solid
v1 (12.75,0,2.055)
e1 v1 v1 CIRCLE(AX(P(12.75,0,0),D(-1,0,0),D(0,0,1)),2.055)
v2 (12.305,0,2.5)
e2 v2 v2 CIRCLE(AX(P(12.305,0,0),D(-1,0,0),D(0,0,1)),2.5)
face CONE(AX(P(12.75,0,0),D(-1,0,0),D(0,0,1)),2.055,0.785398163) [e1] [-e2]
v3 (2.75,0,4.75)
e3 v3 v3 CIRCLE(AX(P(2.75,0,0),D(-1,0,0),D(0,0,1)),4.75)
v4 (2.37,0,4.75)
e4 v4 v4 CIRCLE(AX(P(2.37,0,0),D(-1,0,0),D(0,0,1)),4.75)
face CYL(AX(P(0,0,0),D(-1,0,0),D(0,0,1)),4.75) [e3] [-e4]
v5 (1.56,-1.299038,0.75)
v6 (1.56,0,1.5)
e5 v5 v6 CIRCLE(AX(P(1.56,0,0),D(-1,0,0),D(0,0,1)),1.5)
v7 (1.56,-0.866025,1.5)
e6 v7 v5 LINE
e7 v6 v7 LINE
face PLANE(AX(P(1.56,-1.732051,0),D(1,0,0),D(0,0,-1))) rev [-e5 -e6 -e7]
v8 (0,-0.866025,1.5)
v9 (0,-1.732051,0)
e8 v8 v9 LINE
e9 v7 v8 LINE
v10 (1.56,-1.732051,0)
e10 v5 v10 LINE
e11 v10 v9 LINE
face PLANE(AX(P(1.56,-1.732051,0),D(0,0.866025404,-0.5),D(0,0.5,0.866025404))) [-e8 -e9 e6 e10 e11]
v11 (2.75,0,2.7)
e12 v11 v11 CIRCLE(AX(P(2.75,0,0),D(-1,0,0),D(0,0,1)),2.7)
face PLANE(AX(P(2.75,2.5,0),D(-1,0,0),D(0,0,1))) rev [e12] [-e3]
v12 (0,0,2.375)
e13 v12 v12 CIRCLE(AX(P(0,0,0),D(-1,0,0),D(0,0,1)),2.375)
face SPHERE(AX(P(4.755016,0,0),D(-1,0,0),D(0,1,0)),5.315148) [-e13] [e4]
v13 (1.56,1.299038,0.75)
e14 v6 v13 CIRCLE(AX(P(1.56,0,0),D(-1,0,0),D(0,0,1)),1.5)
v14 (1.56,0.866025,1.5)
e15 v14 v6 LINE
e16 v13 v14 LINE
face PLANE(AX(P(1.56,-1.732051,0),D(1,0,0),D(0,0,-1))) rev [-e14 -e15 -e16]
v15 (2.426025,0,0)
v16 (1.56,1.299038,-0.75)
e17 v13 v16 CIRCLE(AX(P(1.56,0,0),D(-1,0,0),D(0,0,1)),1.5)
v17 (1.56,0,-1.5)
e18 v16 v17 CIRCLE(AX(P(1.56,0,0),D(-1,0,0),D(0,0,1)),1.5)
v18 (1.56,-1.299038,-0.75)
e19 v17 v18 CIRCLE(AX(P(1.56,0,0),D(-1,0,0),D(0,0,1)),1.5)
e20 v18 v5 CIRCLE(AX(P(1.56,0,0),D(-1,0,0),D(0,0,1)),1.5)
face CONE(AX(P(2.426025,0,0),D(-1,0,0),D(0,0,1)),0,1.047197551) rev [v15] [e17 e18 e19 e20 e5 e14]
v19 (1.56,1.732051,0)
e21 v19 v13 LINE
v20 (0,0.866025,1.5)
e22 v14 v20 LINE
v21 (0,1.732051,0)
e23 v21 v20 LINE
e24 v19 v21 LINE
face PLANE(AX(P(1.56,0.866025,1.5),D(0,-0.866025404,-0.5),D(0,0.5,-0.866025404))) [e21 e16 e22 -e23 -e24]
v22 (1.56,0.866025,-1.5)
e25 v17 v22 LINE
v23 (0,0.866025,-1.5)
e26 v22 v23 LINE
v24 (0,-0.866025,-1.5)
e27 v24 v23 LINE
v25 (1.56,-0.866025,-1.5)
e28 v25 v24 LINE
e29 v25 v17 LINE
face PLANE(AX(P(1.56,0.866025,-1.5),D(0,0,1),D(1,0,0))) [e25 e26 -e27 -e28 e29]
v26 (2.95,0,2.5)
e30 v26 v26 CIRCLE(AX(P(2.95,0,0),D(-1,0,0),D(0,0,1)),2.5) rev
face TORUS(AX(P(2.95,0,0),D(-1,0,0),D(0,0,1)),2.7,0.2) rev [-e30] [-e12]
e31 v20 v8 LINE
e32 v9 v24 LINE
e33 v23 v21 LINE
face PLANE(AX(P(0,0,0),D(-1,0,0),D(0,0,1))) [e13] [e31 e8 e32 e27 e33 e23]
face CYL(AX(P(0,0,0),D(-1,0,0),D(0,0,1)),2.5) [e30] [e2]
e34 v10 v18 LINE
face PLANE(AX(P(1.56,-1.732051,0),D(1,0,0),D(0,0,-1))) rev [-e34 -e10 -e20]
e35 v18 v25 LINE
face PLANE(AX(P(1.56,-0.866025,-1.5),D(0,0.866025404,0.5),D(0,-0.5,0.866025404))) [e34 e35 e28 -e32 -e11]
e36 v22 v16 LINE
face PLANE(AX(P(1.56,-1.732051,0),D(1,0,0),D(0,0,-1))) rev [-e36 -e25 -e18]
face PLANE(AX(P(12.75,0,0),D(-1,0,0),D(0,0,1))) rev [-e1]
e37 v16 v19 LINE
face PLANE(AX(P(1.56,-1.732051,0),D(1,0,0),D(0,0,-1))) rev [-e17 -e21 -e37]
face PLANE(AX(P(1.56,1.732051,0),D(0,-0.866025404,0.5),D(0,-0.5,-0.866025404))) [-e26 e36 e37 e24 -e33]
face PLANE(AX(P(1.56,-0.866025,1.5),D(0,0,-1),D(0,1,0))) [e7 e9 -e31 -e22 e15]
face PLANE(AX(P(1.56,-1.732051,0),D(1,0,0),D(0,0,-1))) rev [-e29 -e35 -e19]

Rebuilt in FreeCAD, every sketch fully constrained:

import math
import FreeCAD as App
import Part
import Sketcher

V = App.Vector
Q = App.Units.Quantity


def edges_at(feature, points):
    """Names of the edges that pass closest to the given points."""
    edges = feature.Shape.Edges
    near = lambda p: min(range(len(edges)), key=lambda i: edges[i].distToShape(Part.Vertex(*p))[0])
    return sorted({f"Edge{near(p) + 1}" for p in points})


def add_polygon(sketch, points):
    """Adds a closed chain of lines whose ends are joined by coincident constraints."""
    first, n = sketch.GeometryCount, len(points)
    for a, b in zip(points, points[1:] + points[:1]):
        sketch.addGeometry(Part.LineSegment(App.Vector(*a, 0), App.Vector(*b, 0)), False)
    for i in range(n):
        sketch.addConstraint(Sketcher.Constraint("Coincident", first + i, 2, first + (i + 1) % n, 1))

doc = App.newDocument("Part")
body = doc.addObject("PartDesign::Body", "Body")

# Sketch on XY plane
sketch1 = body.newObject("Sketcher::SketchObject", "Sketch")
sketch1.AttachmentSupport = (doc.getObject("XY_Plane"), [""])
sketch1.MapMode = "FlatFace"
sketch1.addGeometry([
    Part.LineSegment(V(12.75, 0, 0), V(12.75, 2.06, 0)),  # 0
    Part.LineSegment(V(12.75, 2.06, 0), V(12.3, 2.5, 0)),  # 1
    Part.LineSegment(V(12.3, 2.5, 0), V(2.75, 2.5, 0)),  # 2
    Part.LineSegment(V(2.75, 2.5, 0), V(2.75, 4.75, 0)),  # 3
    Part.LineSegment(V(2.75, 4.75, 0), V(2.37, 4.75, 0)),  # 4
    Part.ArcOfCircle(Part.Circle(V(4.76, 0, 0), V(0, 0, 1), 5.32), math.radians(117), math.radians(153)),  # 5
    Part.LineSegment(V(0, 2.38, 0), V(0, 0, 0)),  # 6
    Part.LineSegment(V(0, 0, 0), V(12.75, 0, 0)),  # 7
], False)
sketch1.addConstraint([
    Sketcher.Constraint("Coincident", 0, 2, 1, 1),
    Sketcher.Constraint("Coincident", 1, 2, 2, 1),
    Sketcher.Constraint("Coincident", 2, 2, 3, 1),
    Sketcher.Constraint("Coincident", 3, 2, 4, 1),
    Sketcher.Constraint("Coincident", 4, 2, 5, 1),
    Sketcher.Constraint("Coincident", 5, 2, 6, 1),
    Sketcher.Constraint("Coincident", 6, 2, 7, 1),
    Sketcher.Constraint("Coincident", 7, 2, 0, 1),
    Sketcher.Constraint("Vertical", 0),
    Sketcher.Constraint("Horizontal", 2),
    Sketcher.Constraint("Vertical", 3),
    Sketcher.Constraint("Horizontal", 4),
    Sketcher.Constraint("Vertical", 6),
    Sketcher.Constraint("Horizontal", 7),
    Sketcher.Constraint("Coincident", 6, 2, -1, 1),
    Sketcher.Constraint("PointOnObject", 5, 3, -1),
    Sketcher.Constraint("Angle", 1, Q("135 deg")),
    Sketcher.Constraint("DistanceX", 2, 2, 0, 2, 10.0),
    Sketcher.Constraint("DistanceX", 4, 2, 4, 1, 0.38),
    Sketcher.Constraint("DistanceX", 7, 1, 7, 2, 12.75),
    Sketcher.Constraint("DistanceY", 3, 1, 3, 2, 2.25),
    Sketcher.Constraint("DistanceY", -1, 1, 1, 2, 2.5),
    Sketcher.Constraint("DistanceX", 2, 2, 2, 1, 9.555),
    Sketcher.Constraint("DistanceY", 6, 2, 6, 1, 2.375),
])
revolution = body.newObject("PartDesign::Revolution", "Revolution")
revolution.Profile = sketch1
revolution.ReferenceAxis = (sketch1, ["H_Axis"])
revolution.Angle = 360
doc.recompute()

fillet = body.newObject("PartDesign::Fillet", "Fillet")
fillet.Base = (revolution, edges_at(revolution, [(2.75, 0, -2.5)]))
fillet.Radius = 0.2

# Sketch on XY plane
sketch2 = body.newObject("Sketcher::SketchObject", "Sketch001")
sketch2.AttachmentSupport = (doc.getObject("XY_Plane"), [""])
sketch2.MapMode = "FlatFace"
add_polygon(sketch2, [(1.6, 1.5), (0, 1.5), (0, 0), (2.4, 0)])  # lines 0-3
sketch2.addConstraint([
    Sketcher.Constraint("Horizontal", 0),
    Sketcher.Constraint("Vertical", 1),
    Sketcher.Constraint("Horizontal", 2),
    Sketcher.Constraint("Coincident", 1, 2, -1, 1),
    Sketcher.Constraint("Angle", 3, Q("120 deg")),
    Sketcher.Constraint("DistanceY", 1, 2, 1, 1, 1.5),
    Sketcher.Constraint("DistanceX", 0, 2, 0, 1, 1.56),
])
groove = body.newObject("PartDesign::Groove", "Groove")
groove.Profile = sketch2
groove.ReferenceAxis = (sketch2, ["H_Axis"])
groove.Angle = 360

# Sketch on YZ plane
sketch3 = body.newObject("Sketcher::SketchObject", "Sketch002")
sketch3.AttachmentSupport = (doc.getObject("YZ_Plane"), [""])
sketch3.MapMode = "FlatFace"
add_polygon(sketch3, [(0.9, 1.5), (-0.9, 1.5), (-1.7, 0), (-0.9, -1.5), (0.9, -1.5), (1.7, 0)])  # lines 0-5
sketch3.addConstraint([
    Sketcher.Constraint("Horizontal", 0),
    Sketcher.Constraint("Horizontal", 3),
    Sketcher.Constraint("Symmetric", 0, 2, 3, 2, -1, 1),
    Sketcher.Constraint("Symmetric", 1, 2, 4, 2, -1, 1),
    Sketcher.Constraint("PointOnObject", 1, 2, -1),
    Sketcher.Constraint("Parallel", 2, 5),
    Sketcher.Constraint("Vertical", 0, 2, 2, 2),
    Sketcher.Constraint("Angle", 1, Q("-120 deg")),
    Sketcher.Constraint("DistanceY", 2, 2, 0, 2, 3.0),
    Sketcher.Constraint("DistanceX", 0, 2, 0, 1, 1.732051),
])
pocket1 = body.newObject("PartDesign::Pocket", "Pocket")
pocket1.Profile = sketch3
pocket1.Length = 1.56
pocket1.Reversed = True

doc.recompute()
